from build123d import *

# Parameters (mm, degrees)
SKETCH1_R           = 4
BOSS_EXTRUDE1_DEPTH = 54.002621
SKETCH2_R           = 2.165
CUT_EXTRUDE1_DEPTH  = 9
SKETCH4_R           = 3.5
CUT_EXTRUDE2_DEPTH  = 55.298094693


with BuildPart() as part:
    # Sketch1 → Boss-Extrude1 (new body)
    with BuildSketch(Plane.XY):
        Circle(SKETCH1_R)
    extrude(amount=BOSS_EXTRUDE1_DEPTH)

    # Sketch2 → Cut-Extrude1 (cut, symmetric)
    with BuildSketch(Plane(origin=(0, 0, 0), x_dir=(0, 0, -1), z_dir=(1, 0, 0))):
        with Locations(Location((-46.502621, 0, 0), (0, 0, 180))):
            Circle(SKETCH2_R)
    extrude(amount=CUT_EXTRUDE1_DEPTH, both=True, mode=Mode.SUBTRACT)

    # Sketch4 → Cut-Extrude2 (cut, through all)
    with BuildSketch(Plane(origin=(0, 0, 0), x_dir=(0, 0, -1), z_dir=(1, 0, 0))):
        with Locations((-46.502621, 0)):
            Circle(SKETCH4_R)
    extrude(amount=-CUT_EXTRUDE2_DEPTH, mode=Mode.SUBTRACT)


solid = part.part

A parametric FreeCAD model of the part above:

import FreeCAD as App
import Part
import Sketcher

doc = App.newDocument("Part")
body = doc.addObject("PartDesign::Body", "Body")

# Sketch on XY plane
sketch1 = body.newObject("Sketcher::SketchObject", "Sketch")
sketch1.AttachmentSupport = (doc.getObject("XY_Plane"), [""])
sketch1.MapMode = "FlatFace"
sketch1.addGeometry(Part.Circle(App.Vector(0, 0, 0), App.Vector(0, 0, 1), 4), False)
sketch1.addConstraint(Sketcher.Constraint("Coincident", 0, 3, -1, 1))
sketch1.addConstraint(Sketcher.Constraint("Diameter", 0, 8.0))
pad1 = body.newObject("PartDesign::Pad", "Pad")
pad1.Profile = sketch1
pad1.Length = 54.002621

# Sketch on YZ plane
sketch2 = body.newObject("Sketcher::SketchObject", "Sketch001")
sketch2.AttachmentSupport = (doc.getObject("YZ_Plane"), [""])
sketch2.MapMode = "FlatFace"
sketch2.addGeometry(Part.Circle(App.Vector(0, 46.502621, 0), App.Vector(0, 0, 1), 2.165), False)
sketch2.addConstraint(Sketcher.Constraint("PointOnObject", 0, 3, -2))
sketch2.addConstraint(Sketcher.Constraint("Diameter", 0, 4.33))
sketch2.addConstraint(Sketcher.Constraint("DistanceY", -1, 1, 0, 3, 46.502621))
pocket1 = body.newObject("PartDesign::Pocket", "Pocket")
pocket1.Profile = sketch2
pocket1.Length = 18
pocket1.Midplane = True

# Sketch on YZ plane
sketch3 = body.newObject("Sketcher::SketchObject", "Sketch002")
sketch3.AttachmentSupport = (doc.getObject("YZ_Plane"), [""])
sketch3.MapMode = "FlatFace"
sketch3.addGeometry(Part.Circle(App.Vector(0, 46.502621, 0), App.Vector(0, 0, 1), 3.5), False)
sketch3.addConstraint(Sketcher.Constraint("PointOnObject", 0, 3, -2))
sketch3.addConstraint(Sketcher.Constraint("Diameter", 0, 7.0))
sketch3.addConstraint(Sketcher.Constraint("DistanceY", -1, 1, 0, 3, 46.502621))
pocket2 = body.newObject("PartDesign::Pocket", "Pocket001")
pocket2.Profile = sketch3
pocket2.Type = "ThroughAll"

doc.recompute()
